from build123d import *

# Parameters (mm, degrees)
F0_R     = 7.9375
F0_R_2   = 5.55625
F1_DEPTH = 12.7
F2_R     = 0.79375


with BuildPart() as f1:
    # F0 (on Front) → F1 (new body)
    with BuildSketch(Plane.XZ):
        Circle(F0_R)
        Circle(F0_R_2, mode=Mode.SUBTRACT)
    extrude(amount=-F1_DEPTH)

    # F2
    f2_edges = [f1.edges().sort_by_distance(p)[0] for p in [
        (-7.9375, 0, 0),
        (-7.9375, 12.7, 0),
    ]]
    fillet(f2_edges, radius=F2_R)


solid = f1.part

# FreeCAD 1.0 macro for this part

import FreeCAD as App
import Part
import Sketcher

V = App.Vector
Q = App.Units.Quantity


def edges_at(feature, points):
    """Names of the edges that pass closest to the given points."""
    edges = feature.Shape.Edges
    near = lambda p: min(range(len(edges)), key=lambda i: edges[i].distToShape(Part.Vertex(*p))[0])
    return sorted({f"Edge{near(p) + 1}" for p in points})

doc = App.newDocument("Part")
body = doc.addObject("PartDesign::Body", "Body")

sketch1 = body.newObject("Sketcher::SketchObject", "Sketch")
sketch1.AttachmentSupport = (doc.getObject("XZ_Plane"), [""])
sketch1.MapMode = "FlatFace"
sketch1.addGeometry(Part.Circle(V(0, 0, 0), V(0, 0, 1), 8), False)
sketch1.addGeometry(Part.Circle(V(0, 0, 0), V(0, 0, 1), 6), False)
sketch1.addConstraint(Sketcher.Constraint("Coincident", 0, 3, -1, 1))
sketch1.addConstraint(Sketcher.Constraint("Coincident", 1, 3, -1, 1))
sketch1.addConstraint(Sketcher.Constraint("Diameter", 0, Q("0.625 in")))
sketch1.addConstraint(Sketcher.Constraint("Diameter", 1, Q("0.4375 in")))
pad1 = body.newObject("PartDesign::Pad", "Pad")
pad1.Profile = sketch1
pad1.Length = Q("0.5 in")
pad1.Reversed = True
doc.recompute()

fillet = body.newObject("PartDesign::Fillet", "Fillet")
fillet.Base = (pad1, edges_at(pad1, [(-7.938, 0, 0), (-7.938, 12.7, 0)]))
fillet.Radius = Q("0.03125 in")

doc.recompute()
